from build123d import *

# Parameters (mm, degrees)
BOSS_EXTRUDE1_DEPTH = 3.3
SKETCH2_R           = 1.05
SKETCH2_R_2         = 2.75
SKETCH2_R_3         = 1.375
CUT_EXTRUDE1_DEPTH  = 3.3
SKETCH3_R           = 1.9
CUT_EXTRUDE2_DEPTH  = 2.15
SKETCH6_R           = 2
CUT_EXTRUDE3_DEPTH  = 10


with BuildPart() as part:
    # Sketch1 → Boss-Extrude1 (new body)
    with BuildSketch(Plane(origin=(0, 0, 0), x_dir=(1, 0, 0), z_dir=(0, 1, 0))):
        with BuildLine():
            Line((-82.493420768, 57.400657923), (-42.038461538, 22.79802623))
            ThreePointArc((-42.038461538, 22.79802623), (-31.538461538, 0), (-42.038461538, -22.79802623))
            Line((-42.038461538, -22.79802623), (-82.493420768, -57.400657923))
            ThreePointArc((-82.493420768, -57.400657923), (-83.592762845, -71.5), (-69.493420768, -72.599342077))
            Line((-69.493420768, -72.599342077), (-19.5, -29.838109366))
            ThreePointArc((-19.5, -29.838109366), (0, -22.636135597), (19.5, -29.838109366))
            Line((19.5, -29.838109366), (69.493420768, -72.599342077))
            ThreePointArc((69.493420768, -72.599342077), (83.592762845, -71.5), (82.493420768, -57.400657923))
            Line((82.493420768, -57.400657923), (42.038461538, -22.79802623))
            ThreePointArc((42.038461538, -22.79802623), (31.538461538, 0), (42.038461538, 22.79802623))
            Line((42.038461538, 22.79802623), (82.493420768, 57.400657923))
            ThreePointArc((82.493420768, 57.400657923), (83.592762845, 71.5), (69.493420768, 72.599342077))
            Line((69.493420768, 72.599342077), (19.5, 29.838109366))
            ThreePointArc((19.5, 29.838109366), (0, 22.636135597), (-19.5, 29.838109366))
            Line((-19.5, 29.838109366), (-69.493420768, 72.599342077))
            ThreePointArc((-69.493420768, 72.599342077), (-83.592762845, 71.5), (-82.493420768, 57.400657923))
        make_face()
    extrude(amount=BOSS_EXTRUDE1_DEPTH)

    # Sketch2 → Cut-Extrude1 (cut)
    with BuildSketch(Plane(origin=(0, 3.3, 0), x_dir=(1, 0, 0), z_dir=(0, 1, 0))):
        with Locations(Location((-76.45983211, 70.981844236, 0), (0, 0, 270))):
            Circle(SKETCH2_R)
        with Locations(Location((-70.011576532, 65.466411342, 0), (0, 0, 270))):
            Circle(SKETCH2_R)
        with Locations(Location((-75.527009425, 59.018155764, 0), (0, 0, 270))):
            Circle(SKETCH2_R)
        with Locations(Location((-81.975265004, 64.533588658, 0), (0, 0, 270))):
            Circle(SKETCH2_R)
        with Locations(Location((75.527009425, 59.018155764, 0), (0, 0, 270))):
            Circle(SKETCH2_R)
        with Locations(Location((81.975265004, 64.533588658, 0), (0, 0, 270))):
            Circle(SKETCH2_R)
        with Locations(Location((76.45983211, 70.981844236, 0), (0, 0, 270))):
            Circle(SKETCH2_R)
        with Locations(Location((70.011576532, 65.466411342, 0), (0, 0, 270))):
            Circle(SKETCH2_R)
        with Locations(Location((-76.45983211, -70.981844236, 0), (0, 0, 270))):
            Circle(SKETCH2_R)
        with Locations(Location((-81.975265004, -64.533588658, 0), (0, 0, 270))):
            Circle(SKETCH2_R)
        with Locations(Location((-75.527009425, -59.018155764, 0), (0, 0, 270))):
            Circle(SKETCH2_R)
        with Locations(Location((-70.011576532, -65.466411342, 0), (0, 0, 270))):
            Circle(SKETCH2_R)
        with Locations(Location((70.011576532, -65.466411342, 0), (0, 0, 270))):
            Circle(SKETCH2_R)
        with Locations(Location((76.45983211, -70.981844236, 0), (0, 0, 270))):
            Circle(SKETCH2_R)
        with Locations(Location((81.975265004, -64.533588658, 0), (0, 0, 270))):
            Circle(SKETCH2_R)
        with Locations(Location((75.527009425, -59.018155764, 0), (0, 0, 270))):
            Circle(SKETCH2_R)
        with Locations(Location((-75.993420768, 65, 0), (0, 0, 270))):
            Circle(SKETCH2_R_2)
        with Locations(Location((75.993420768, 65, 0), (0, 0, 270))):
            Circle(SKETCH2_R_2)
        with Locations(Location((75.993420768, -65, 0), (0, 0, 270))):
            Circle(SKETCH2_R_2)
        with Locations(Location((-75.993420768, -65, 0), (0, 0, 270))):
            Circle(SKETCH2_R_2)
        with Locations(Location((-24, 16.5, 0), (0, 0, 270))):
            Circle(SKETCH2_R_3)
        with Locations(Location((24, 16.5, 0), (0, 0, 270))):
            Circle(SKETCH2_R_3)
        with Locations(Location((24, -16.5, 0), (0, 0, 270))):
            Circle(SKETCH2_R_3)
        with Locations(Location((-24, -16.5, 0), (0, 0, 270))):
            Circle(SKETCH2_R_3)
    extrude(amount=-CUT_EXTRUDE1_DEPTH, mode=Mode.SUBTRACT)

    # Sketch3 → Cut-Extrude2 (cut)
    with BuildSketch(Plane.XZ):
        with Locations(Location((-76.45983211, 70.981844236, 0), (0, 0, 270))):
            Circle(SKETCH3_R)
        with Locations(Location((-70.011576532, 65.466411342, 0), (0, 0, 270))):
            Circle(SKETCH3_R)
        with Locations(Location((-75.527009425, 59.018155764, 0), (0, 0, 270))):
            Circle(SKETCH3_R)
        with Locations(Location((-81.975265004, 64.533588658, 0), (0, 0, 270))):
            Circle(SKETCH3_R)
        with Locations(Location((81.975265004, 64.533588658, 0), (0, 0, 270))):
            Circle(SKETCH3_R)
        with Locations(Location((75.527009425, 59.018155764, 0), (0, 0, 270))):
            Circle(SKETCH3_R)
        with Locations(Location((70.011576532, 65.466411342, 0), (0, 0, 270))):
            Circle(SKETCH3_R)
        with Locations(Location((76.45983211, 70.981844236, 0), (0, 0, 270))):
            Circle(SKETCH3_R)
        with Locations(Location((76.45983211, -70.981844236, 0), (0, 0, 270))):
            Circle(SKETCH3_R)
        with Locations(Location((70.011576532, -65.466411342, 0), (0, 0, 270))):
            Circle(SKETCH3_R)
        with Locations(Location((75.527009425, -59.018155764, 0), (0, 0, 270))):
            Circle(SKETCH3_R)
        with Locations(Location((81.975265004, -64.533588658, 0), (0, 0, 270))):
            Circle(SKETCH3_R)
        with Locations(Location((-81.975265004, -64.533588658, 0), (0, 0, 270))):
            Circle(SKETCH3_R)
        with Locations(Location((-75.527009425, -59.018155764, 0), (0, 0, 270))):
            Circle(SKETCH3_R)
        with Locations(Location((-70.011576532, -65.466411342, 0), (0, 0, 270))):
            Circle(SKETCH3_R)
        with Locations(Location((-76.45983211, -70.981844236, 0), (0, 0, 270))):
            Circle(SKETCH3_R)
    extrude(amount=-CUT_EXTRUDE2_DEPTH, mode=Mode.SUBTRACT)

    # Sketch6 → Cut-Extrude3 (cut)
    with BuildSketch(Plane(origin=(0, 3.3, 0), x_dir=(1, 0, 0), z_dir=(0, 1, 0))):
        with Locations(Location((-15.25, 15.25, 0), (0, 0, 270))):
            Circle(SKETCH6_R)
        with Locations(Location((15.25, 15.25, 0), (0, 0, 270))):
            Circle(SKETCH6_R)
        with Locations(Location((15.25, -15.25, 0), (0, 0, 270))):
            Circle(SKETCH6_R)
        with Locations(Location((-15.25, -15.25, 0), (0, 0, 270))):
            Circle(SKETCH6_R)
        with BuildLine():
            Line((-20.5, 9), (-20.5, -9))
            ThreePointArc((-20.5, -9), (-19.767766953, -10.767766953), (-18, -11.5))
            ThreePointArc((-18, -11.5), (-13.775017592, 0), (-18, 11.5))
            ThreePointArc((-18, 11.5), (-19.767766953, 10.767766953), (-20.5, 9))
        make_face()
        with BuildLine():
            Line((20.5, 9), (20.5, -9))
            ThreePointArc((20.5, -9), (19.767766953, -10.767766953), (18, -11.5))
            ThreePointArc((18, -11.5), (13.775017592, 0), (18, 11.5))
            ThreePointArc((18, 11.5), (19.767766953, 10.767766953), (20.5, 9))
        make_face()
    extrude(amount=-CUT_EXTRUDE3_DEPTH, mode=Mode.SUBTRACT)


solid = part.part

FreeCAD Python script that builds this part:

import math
import FreeCAD as App
import Part
import Sketcher

V = App.Vector
Q = App.Units.Quantity

doc = App.newDocument("Part")
body = doc.addObject("PartDesign::Body", "Body")

# Sketch on XZ plane
sketch1 = body.newObject("Sketcher::SketchObject", "Sketch")
sketch1.AttachmentSupport = (doc.getObject("XZ_Plane"), [""])
sketch1.MapMode = "FlatFace"
sketch1.addGeometry([
    Part.LineSegment(V(-82, -57, 0), V(-42, -23, 0)),  # 0
    Part.ArcOfCircle(Part.Circle(V(-62, 0, 0), V(0, 0, 1), 30), math.radians(-49), math.radians(49)),  # 1
    Part.LineSegment(V(-42, 23, 0), V(-82, 57, 0)),  # 2
    Part.ArcOfCircle(Part.Circle(V(-76, 65, 0), V(0, 0, 1), 10), math.radians(49), math.radians(229)),  # 3
    Part.LineSegment(V(-69, 73, 0), V(-20, 30, 0)),  # 4
    Part.ArcOfCircle(Part.Circle(V(0, 53, 0), V(0, 0, 1), 30), math.radians(-131), math.radians(-49)),  # 5
    Part.LineSegment(V(20, 30, 0), V(69, 73, 0)),  # 6
    Part.ArcOfCircle(Part.Circle(V(76, 65, 0), V(0, 0, 1), 10), math.radians(-49), math.radians(131)),  # 7
    Part.LineSegment(V(82, 57, 0), V(42, 23, 0)),  # 8
    Part.ArcOfCircle(Part.Circle(V(62, 0, 0), V(0, 0, 1), 30), math.radians(131), math.radians(229)),  # 9
    Part.LineSegment(V(42, -23, 0), V(82, -57, 0)),  # 10
    Part.ArcOfCircle(Part.Circle(V(76, -65, 0), V(0, 0, 1), 10), math.radians(-131), math.radians(49)),  # 11
    Part.LineSegment(V(69, -73, 0), V(20, -30, 0)),  # 12
    Part.ArcOfCircle(Part.Circle(V(0, -53, 0), V(0, 0, 1), 30), math.radians(49), math.radians(131)),  # 13
    Part.LineSegment(V(-20, -30, 0), V(-69, -73, 0)),  # 14
    Part.ArcOfCircle(Part.Circle(V(-76, -65, 0), V(0, 0, 1), 10), math.radians(131), math.radians(311)),  # 15
], False)
sketch1.addConstraint([
    Sketcher.Constraint("Tangent", 0, 2, 1, 1),
    Sketcher.Constraint("Tangent", 1, 2, 2, 1),
    Sketcher.Constraint("Tangent", 2, 2, 3, 2),
    Sketcher.Constraint("Tangent", 3, 1, 4, 1),
    Sketcher.Constraint("Tangent", 4, 2, 5, 1),
    Sketcher.Constraint("Tangent", 5, 2, 6, 1),
    Sketcher.Constraint("Tangent", 6, 2, 7, 2),
    Sketcher.Constraint("Tangent", 7, 1, 8, 1),
    Sketcher.Constraint("Tangent", 8, 2, 9, 1),
    Sketcher.Constraint("Tangent", 9, 2, 10, 1),
    Sketcher.Constraint("Tangent", 10, 2, 11, 2),
    Sketcher.Constraint("Tangent", 11, 1, 12, 1),
    Sketcher.Constraint("Tangent", 12, 2, 13, 1),
    Sketcher.Constraint("Tangent", 13, 2, 14, 1),
    Sketcher.Constraint("Tangent", 14, 2, 15, 2),
    Sketcher.Constraint("Tangent", 15, 1, 0, 1),
    Sketcher.Constraint("Equal", 1, 5),
    Sketcher.Constraint("Equal", 3, 7),
    Sketcher.Constraint("Equal", 5, 9),
    Sketcher.Constraint("Equal", 7, 11),
    Sketcher.Constraint("Equal", 9, 13),
    Sketcher.Constraint("Equal", 11, 15),
    Sketcher.Constraint("Symmetric", 1, 3, 9, 3, -1, 1),
    Sketcher.Constraint("Symmetric", 3, 3, 11, 3, -1, 1),
    Sketcher.Constraint("Symmetric", 5, 3, 13, 3, -1, 1),
    Sketcher.Constraint("Symmetric", 7, 3, 15, 3, -1, 1),
    Sketcher.Constraint("Symmetric", 3, 3, 7, 3, -2),
    Sketcher.Constraint("PointOnObject", 1, 3, -1),
    Sketcher.Constraint("PointOnObject", 5, 3, -2),
    Sketcher.Constraint("Parallel", 2, 4),
    Sketcher.Constraint("Radius", 1, Q("30 mm")),
    Sketcher.Constraint("Radius", 3, Q("10 mm")),
    Sketcher.Constraint("DistanceY", -1, 1, 3, 3, Q("65 mm")),
    Sketcher.Constraint("DistanceX", 2, 2, 3, 1, Q("13 mm")),
    Sketcher.Constraint("Distance", 4, Q("65.786512 mm")),
])
pad1 = body.newObject("PartDesign::Pad", "Pad")
pad1.Profile = sketch1
pad1.Length = 3.3
pad1.Reversed = True

# Sketch on XZ plane
sketch2 = body.newObject("Sketcher::SketchObject", "Sketch001")
sketch2.AttachmentSupport = (doc.getObject("XZ_Plane"), [""])
sketch2.MapMode = "FlatFace"
sketch2.AttachmentOffset = App.Placement(V(0, 0, -3.3), App.Rotation())
sketch2.addGeometry([
    Part.Circle(V(-76.5, -71, 0), V(0, 0, 1), 1.1),  # 0
    Part.Circle(V(-70, -65.5, 0), V(0, 0, 1), 1.1),  # 1
    Part.Circle(V(-75.5, -59, 0), V(0, 0, 1), 1.1),  # 2
    Part.Circle(V(-82, -64.5, 0), V(0, 0, 1), 1.1),  # 3
    Part.Circle(V(75.5, -59, 0), V(0, 0, 1), 1.1),  # 4
    Part.Circle(V(82, -64.5, 0), V(0, 0, 1), 1.1),  # 5
    Part.Circle(V(76.5, -71, 0), V(0, 0, 1), 1.1),  # 6
    Part.Circle(V(70, -65.5, 0), V(0, 0, 1), 1.1),  # 7
    Part.Circle(V(-76.5, 71, 0), V(0, 0, 1), 1.1),  # 8
    Part.Circle(V(-82, 64.5, 0), V(0, 0, 1), 1.1),  # 9
    Part.Circle(V(-75.5, 59, 0), V(0, 0, 1), 1.1),  # 10
    Part.Circle(V(-70, 65.5, 0), V(0, 0, 1), 1.1),  # 11
    Part.Circle(V(70, 65.5, 0), V(0, 0, 1), 1.1),  # 12
    Part.Circle(V(76.5, 71, 0), V(0, 0, 1), 1.1),  # 13
    Part.Circle(V(82, 64.5, 0), V(0, 0, 1), 1.1),  # 14
    Part.Circle(V(75.5, 59, 0), V(0, 0, 1), 1.1),  # 15
    Part.Circle(V(-76, -65, 0), V(0, 0, 1), 2.8),  # 16
    Part.Circle(V(76, -65, 0), V(0, 0, 1), 2.8),  # 17
    Part.Circle(V(76, 65, 0), V(0, 0, 1), 2.8),  # 18
    Part.Circle(V(-76, 65, 0), V(0, 0, 1), 2.8),  # 19
    Part.Circle(V(-24, -16.5, 0), V(0, 0, 1), 1.4),  # 20
    Part.Circle(V(24, -16.5, 0), V(0, 0, 1), 1.4),  # 21
    Part.Circle(V(24, 16.5, 0), V(0, 0, 1), 1.4),  # 22
    Part.Circle(V(-24, 16.5, 0), V(0, 0, 1), 1.4),  # 23
], False)
sketch2.addConstraint([
    Sketcher.Constraint("Equal", 0, 1),
    Sketcher.Constraint("Equal", 1, 2),
    Sketcher.Constraint("Equal", 2, 3),
    Sketcher.Constraint("Equal", 3, 4),
    Sketcher.Constraint("Equal", 4, 5),
    Sketcher.Constraint("Equal", 5, 6),
    Sketcher.Constraint("Equal", 6, 7),
    Sketcher.Constraint("Equal", 7, 8),
    Sketcher.Constraint("Equal", 8, 9),
    Sketcher.Constraint("Equal", 9, 10),
    Sketcher.Constraint("Equal", 10, 11),
    Sketcher.Constraint("Equal", 11, 12),
    Sketcher.Constraint("Equal", 12, 13),
    Sketcher.Constraint("Equal", 13, 14),
    Sketcher.Constraint("Equal", 14, 15),
    Sketcher.Constraint("Equal", 16, 17),
    Sketcher.Constraint("Equal", 17, 18),
    Sketcher.Constraint("Equal", 18, 19),
    Sketcher.Constraint("Equal", 20, 21),
    Sketcher.Constraint("Equal", 21, 22),
    Sketcher.Constraint("Equal", 22, 23),
    Sketcher.Constraint("Symmetric", 6, 3, 8, 3, -1, 1),
    Sketcher.Constraint("Symmetric", 5, 3, 9, 3, -1, 1),
    Sketcher.Constraint("Symmetric", 4, 3, 10, 3, -1, 1),
    Sketcher.Constraint("Symmetric", 7, 3, 11, 3, -1, 1),
    Sketcher.Constraint("Symmetric", 1, 3, 12, 3, -1, 1),
    Sketcher.Constraint("Symmetric", 0, 3, 13, 3, -1, 1),
    Sketcher.Constraint("Symmetric", 3, 3, 14, 3, -1, 1),
    Sketcher.Constraint("Symmetric", 2, 3, 15, 3, -1, 1),
    Sketcher.Constraint("Symmetric", 16, 3, 18, 3, -1, 1),
    Sketcher.Constraint("Symmetric", 17, 3, 19, 3, -1, 1),
    Sketcher.Constraint("Symmetric", 20, 3, 22, 3, -1, 1),
    Sketcher.Constraint("Symmetric", 21, 3, 23, 3, -1, 1),
    Sketcher.Constraint("Symmetric", 2, 3, 4, 3, -2),
    Sketcher.Constraint("Symmetric", 3, 3, 5, 3, -2),
    Sketcher.Constraint("Symmetric", 0, 3, 6, 3, -2),
    Sketcher.Constraint("Symmetric", 1, 3, 7, 3, -2),
    Sketcher.Constraint("Symmetric", 16, 3, 17, 3, -2),
    Sketcher.Constraint("Symmetric", 20, 3, 21, 3, -2),
    Sketcher.Constraint("Diameter", 0, Q("2.1 mm")),
    Sketcher.Constraint("Diameter", 16, Q("5.5 mm")),
    Sketcher.Constraint("Diameter", 20, Q("2.75 mm")),
    Sketcher.Constraint("DistanceY", 16, 3, -1, 1, Q("65 mm")),
    Sketcher.Constraint("DistanceX", 20, 3, -1, 1, Q("24 mm")),
    Sketcher.Constraint("DistanceY", 2, 3, 8, 3, Q("130 mm")),
    Sketcher.Constraint("DistanceY", 1, 3, 9, 3, Q("130 mm")),
    Sketcher.Constraint("DistanceY", 21, 3, 22, 3, Q("33 mm")),
    Sketcher.Constraint("DistanceY", 1, 3, -1, 1, Q("65.466411 mm")),
    Sketcher.Constraint("DistanceX", 2, 3, -1, 1, Q("75.527009 mm")),
    Sketcher.Constraint("DistanceX", 16, 3, -1, 1, Q("75.993421 mm")),
    Sketcher.Constraint("DistanceY", 0, 3, 2, 3, Q("11.963688 mm")),
    Sketcher.Constraint("DistanceX", 3, 3, 1, 3, Q("11.963688 mm")),
    Sketcher.Constraint("DistanceX", 0, 3, 4, 3, Q("151.986842 mm")),
    Sketcher.Constraint("DistanceX", 1, 3, 5, 3, Q("151.986842 mm")),
])
pocket1 = body.newObject("PartDesign::Pocket", "Pocket")
pocket1.Profile = sketch2
pocket1.Length = 3.3
pocket1.Reversed = True

# Sketch on XZ plane
sketch3 = body.newObject("Sketcher::SketchObject", "Sketch002")
sketch3.AttachmentSupport = (doc.getObject("XZ_Plane"), [""])
sketch3.MapMode = "FlatFace"
sketch3.addGeometry([
    Part.Circle(V(-76.5, 71, 0), V(0, 0, 1), 1.9),  # 0
    Part.Circle(V(-70, 65.5, 0), V(0, 0, 1), 1.9),  # 1
    Part.Circle(V(-75.5, 59, 0), V(0, 0, 1), 1.9),  # 2
    Part.Circle(V(-82, 64.5, 0), V(0, 0, 1), 1.9),  # 3
    Part.Circle(V(82, 64.5, 0), V(0, 0, 1), 1.9),  # 4
    Part.Circle(V(75.5, 59, 0), V(0, 0, 1), 1.9),  # 5
    Part.Circle(V(70, 65.5, 0), V(0, 0, 1), 1.9),  # 6
    Part.Circle(V(76.5, 71, 0), V(0, 0, 1), 1.9),  # 7
    Part.Circle(V(76.5, -71, 0), V(0, 0, 1), 1.9),  # 8
    Part.Circle(V(70, -65.5, 0), V(0, 0, 1), 1.9),  # 9
    Part.Circle(V(75.5, -59, 0), V(0, 0, 1), 1.9),  # 10
    Part.Circle(V(82, -64.5, 0), V(0, 0, 1), 1.9),  # 11
    Part.Circle(V(-82, -64.5, 0), V(0, 0, 1), 1.9),  # 12
    Part.Circle(V(-75.5, -59, 0), V(0, 0, 1), 1.9),  # 13
    Part.Circle(V(-70, -65.5, 0), V(0, 0, 1), 1.9),  # 14
    Part.Circle(V(-76.5, -71, 0), V(0, 0, 1), 1.9),  # 15
], False)
sketch3.addConstraint([
    Sketcher.Constraint("Equal", 0, 1),
    Sketcher.Constraint("Equal", 1, 2),
    Sketcher.Constraint("Equal", 2, 3),
    Sketcher.Constraint("Equal", 3, 4),
    Sketcher.Constraint("Equal", 4, 5),
    Sketcher.Constraint("Equal", 5, 6),
    Sketcher.Constraint("Equal", 6, 7),
    Sketcher.Constraint("Equal", 7, 8),
    Sketcher.Constraint("Equal", 8, 9),
    Sketcher.Constraint("Equal", 9, 10),
    Sketcher.Constraint("Equal", 10, 11),
    Sketcher.Constraint("Equal", 11, 12),
    Sketcher.Constraint("Equal", 12, 13),
    Sketcher.Constraint("Equal", 13, 14),
    Sketcher.Constraint("Equal", 14, 15),
    Sketcher.Constraint("Symmetric", 0, 3, 8, 3, -1, 1),
    Sketcher.Constraint("Symmetric", 1, 3, 9, 3, -1, 1),
    Sketcher.Constraint("Symmetric", 2, 3, 10, 3, -1, 1),
    Sketcher.Constraint("Symmetric", 3, 3, 11, 3, -1, 1),
    Sketcher.Constraint("Symmetric", 4, 3, 12, 3, -1, 1),
    Sketcher.Constraint("Symmetric", 5, 3, 13, 3, -1, 1),
    Sketcher.Constraint("Symmetric", 6, 3, 14, 3, -1, 1),
    Sketcher.Constraint("Symmetric", 7, 3, 15, 3, -1, 1),
    Sketcher.Constraint("Symmetric", 3, 3, 4, 3, -2),
    Sketcher.Constraint("Symmetric", 2, 3, 5, 3, -2),
    Sketcher.Constraint("Symmetric", 1, 3, 6, 3, -2),
    Sketcher.Constraint("Symmetric", 0, 3, 7, 3, -2),
    Sketcher.Constraint("Diameter", 0, Q("3.8 mm")),
    Sketcher.Constraint("DistanceY", 8, 3, 5, 3, Q("130 mm")),
    Sketcher.Constraint("DistanceY", 9, 3, 4, 3, Q("130 mm")),
    Sketcher.Constraint("DistanceY", -1, 1, 1, 3, Q("65.466411 mm")),
    Sketcher.Constraint("DistanceX", 2, 3, -1, 1, Q("75.527009 mm")),
    Sketcher.Constraint("DistanceY", 2, 3, 0, 3, Q("11.963688 mm")),
    Sketcher.Constraint("DistanceX", 3, 3, 1, 3, Q("11.963688 mm")),
    Sketcher.Constraint("DistanceX", 1, 3, 4, 3, Q("151.986842 mm")),
    Sketcher.Constraint("DistanceX", 0, 3, 5, 3, Q("151.986842 mm")),
])
pocket2 = body.newObject("PartDesign::Pocket", "Pocket001")
pocket2.Profile = sketch3
pocket2.Length = 2.15

# Sketch on XZ plane
sketch4 = body.newObject("Sketcher::SketchObject", "Sketch003")
sketch4.AttachmentSupport = (doc.getObject("XZ_Plane"), [""])
sketch4.MapMode = "FlatFace"
sketch4.AttachmentOffset = App.Placement(V(0, 0, -3.3), App.Rotation())
sketch4.addGeometry([
    Part.Circle(V(-15.2, -15.2, 0), V(0, 0, 1), 2),  # 0
    Part.Circle(V(15.2, -15.2, 0), V(0, 0, 1), 2),  # 1
    Part.Circle(V(15.2, 15.2, 0), V(0, 0, 1), 2),  # 2
    Part.Circle(V(-15.2, 15.2, 0), V(0, 0, 1), 2),  # 3
    Part.LineSegment(V(-20.5, -9, 0), V(-20.5, 9, 0)),  # 4
    Part.ArcOfCircle(Part.Circle(V(-18, 9, 0), V(0, 0, 1), 2.5), math.radians(90), math.radians(180)),  # 5
    Part.ArcOfCircle(Part.Circle(V(-31.5, 0, 0), V(0, 0, 1), 17.8), math.radians(-40), math.radians(40)),  # 6
    Part.ArcOfCircle(Part.Circle(V(-18, -9, 0), V(0, 0, 1), 2.5), math.radians(180), math.radians(270)),  # 7
    Part.LineSegment(V(20.5, 9, 0), V(20.5, -9, 0)),  # 8
    Part.ArcOfCircle(Part.Circle(V(18, -9, 0), V(0, 0, 1), 2.5), math.radians(-90), math.radians(0)),  # 9
    Part.ArcOfCircle(Part.Circle(V(31.5, 0, 0), V(0, 0, 1), 17.8), math.radians(140), math.radians(220)),  # 10
    Part.ArcOfCircle(Part.Circle(V(18, 9, 0), V(0, 0, 1), 2.5), math.radians(0), math.radians(90)),  # 11
], False)
sketch4.addConstraint([
    Sketcher.Constraint("Tangent", 4, 2, 5, 2),
    Sketcher.Constraint("Coincident", 5, 1, 6, 2),
    Sketcher.Constraint("Coincident", 6, 1, 7, 2),
    Sketcher.Constraint("Tangent", 7, 1, 4, 1),
    Sketcher.Constraint("Tangent", 8, 2, 9, 2),
    Sketcher.Constraint("Coincident", 9, 1, 10, 2),
    Sketcher.Constraint("Coincident", 10, 1, 11, 2),
    Sketcher.Constraint("Tangent", 11, 1, 8, 1),
    Sketcher.Constraint("Vertical", 4),
    Sketcher.Constraint("Vertical", 8),
    Sketcher.Constraint("Equal", 0, 1),
    Sketcher.Constraint("Equal", 1, 2),
    Sketcher.Constraint("Equal", 2, 3),
    Sketcher.Constraint("Equal", 5, 7),
    Sketcher.Constraint("Equal", 7, 9),
    Sketcher.Constraint("Equal", 6, 10),
    Sketcher.Constraint("Equal", 9, 11),
    Sketcher.Constraint("Symmetric", 0, 3, 2, 3, -1, 1),
    Sketcher.Constraint("Symmetric", 1, 3, 3, 3, -1, 1),
    Sketcher.Constraint("Symmetric", 5, 3, 9, 3, -1, 1),
    Sketcher.Constraint("Symmetric", 6, 3, 10, 3, -1, 1),
    Sketcher.Constraint("Symmetric", 0, 3, 1, 3, -2),
    Sketcher.Constraint("Symmetric", 6, 1, 9, 1, -2),
    Sketcher.Constraint("Horizontal", 5, 3, 11, 3),
    Sketcher.Constraint("Vertical", 7, 3, 5, 1),
    Sketcher.Constraint("Diameter", 0, Q("4 mm")),
    Sketcher.Constraint("Radius", 5, Q("2.5 mm")),
    Sketcher.Constraint("DistanceY", 4, 1, 4, 2, Q("18 mm")),
    Sketcher.Constraint("DistanceX", 5, 3, -1, 1, Q("18 mm")),
    Sketcher.Constraint("DistanceX", 0, 3, 1, 3, Q("30.5 mm")),
    Sketcher.Constraint("DistanceY", 1, 3, 2, 3, Q("30.5 mm")),
    Sketcher.Constraint("Radius", 6, Q("17.763444 mm")),
])
pocket3 = body.newObject("PartDesign::Pocket", "Pocket002")
pocket3.Profile = sketch4
pocket3.Length = 10
pocket3.Reversed = True

doc.recompute()
